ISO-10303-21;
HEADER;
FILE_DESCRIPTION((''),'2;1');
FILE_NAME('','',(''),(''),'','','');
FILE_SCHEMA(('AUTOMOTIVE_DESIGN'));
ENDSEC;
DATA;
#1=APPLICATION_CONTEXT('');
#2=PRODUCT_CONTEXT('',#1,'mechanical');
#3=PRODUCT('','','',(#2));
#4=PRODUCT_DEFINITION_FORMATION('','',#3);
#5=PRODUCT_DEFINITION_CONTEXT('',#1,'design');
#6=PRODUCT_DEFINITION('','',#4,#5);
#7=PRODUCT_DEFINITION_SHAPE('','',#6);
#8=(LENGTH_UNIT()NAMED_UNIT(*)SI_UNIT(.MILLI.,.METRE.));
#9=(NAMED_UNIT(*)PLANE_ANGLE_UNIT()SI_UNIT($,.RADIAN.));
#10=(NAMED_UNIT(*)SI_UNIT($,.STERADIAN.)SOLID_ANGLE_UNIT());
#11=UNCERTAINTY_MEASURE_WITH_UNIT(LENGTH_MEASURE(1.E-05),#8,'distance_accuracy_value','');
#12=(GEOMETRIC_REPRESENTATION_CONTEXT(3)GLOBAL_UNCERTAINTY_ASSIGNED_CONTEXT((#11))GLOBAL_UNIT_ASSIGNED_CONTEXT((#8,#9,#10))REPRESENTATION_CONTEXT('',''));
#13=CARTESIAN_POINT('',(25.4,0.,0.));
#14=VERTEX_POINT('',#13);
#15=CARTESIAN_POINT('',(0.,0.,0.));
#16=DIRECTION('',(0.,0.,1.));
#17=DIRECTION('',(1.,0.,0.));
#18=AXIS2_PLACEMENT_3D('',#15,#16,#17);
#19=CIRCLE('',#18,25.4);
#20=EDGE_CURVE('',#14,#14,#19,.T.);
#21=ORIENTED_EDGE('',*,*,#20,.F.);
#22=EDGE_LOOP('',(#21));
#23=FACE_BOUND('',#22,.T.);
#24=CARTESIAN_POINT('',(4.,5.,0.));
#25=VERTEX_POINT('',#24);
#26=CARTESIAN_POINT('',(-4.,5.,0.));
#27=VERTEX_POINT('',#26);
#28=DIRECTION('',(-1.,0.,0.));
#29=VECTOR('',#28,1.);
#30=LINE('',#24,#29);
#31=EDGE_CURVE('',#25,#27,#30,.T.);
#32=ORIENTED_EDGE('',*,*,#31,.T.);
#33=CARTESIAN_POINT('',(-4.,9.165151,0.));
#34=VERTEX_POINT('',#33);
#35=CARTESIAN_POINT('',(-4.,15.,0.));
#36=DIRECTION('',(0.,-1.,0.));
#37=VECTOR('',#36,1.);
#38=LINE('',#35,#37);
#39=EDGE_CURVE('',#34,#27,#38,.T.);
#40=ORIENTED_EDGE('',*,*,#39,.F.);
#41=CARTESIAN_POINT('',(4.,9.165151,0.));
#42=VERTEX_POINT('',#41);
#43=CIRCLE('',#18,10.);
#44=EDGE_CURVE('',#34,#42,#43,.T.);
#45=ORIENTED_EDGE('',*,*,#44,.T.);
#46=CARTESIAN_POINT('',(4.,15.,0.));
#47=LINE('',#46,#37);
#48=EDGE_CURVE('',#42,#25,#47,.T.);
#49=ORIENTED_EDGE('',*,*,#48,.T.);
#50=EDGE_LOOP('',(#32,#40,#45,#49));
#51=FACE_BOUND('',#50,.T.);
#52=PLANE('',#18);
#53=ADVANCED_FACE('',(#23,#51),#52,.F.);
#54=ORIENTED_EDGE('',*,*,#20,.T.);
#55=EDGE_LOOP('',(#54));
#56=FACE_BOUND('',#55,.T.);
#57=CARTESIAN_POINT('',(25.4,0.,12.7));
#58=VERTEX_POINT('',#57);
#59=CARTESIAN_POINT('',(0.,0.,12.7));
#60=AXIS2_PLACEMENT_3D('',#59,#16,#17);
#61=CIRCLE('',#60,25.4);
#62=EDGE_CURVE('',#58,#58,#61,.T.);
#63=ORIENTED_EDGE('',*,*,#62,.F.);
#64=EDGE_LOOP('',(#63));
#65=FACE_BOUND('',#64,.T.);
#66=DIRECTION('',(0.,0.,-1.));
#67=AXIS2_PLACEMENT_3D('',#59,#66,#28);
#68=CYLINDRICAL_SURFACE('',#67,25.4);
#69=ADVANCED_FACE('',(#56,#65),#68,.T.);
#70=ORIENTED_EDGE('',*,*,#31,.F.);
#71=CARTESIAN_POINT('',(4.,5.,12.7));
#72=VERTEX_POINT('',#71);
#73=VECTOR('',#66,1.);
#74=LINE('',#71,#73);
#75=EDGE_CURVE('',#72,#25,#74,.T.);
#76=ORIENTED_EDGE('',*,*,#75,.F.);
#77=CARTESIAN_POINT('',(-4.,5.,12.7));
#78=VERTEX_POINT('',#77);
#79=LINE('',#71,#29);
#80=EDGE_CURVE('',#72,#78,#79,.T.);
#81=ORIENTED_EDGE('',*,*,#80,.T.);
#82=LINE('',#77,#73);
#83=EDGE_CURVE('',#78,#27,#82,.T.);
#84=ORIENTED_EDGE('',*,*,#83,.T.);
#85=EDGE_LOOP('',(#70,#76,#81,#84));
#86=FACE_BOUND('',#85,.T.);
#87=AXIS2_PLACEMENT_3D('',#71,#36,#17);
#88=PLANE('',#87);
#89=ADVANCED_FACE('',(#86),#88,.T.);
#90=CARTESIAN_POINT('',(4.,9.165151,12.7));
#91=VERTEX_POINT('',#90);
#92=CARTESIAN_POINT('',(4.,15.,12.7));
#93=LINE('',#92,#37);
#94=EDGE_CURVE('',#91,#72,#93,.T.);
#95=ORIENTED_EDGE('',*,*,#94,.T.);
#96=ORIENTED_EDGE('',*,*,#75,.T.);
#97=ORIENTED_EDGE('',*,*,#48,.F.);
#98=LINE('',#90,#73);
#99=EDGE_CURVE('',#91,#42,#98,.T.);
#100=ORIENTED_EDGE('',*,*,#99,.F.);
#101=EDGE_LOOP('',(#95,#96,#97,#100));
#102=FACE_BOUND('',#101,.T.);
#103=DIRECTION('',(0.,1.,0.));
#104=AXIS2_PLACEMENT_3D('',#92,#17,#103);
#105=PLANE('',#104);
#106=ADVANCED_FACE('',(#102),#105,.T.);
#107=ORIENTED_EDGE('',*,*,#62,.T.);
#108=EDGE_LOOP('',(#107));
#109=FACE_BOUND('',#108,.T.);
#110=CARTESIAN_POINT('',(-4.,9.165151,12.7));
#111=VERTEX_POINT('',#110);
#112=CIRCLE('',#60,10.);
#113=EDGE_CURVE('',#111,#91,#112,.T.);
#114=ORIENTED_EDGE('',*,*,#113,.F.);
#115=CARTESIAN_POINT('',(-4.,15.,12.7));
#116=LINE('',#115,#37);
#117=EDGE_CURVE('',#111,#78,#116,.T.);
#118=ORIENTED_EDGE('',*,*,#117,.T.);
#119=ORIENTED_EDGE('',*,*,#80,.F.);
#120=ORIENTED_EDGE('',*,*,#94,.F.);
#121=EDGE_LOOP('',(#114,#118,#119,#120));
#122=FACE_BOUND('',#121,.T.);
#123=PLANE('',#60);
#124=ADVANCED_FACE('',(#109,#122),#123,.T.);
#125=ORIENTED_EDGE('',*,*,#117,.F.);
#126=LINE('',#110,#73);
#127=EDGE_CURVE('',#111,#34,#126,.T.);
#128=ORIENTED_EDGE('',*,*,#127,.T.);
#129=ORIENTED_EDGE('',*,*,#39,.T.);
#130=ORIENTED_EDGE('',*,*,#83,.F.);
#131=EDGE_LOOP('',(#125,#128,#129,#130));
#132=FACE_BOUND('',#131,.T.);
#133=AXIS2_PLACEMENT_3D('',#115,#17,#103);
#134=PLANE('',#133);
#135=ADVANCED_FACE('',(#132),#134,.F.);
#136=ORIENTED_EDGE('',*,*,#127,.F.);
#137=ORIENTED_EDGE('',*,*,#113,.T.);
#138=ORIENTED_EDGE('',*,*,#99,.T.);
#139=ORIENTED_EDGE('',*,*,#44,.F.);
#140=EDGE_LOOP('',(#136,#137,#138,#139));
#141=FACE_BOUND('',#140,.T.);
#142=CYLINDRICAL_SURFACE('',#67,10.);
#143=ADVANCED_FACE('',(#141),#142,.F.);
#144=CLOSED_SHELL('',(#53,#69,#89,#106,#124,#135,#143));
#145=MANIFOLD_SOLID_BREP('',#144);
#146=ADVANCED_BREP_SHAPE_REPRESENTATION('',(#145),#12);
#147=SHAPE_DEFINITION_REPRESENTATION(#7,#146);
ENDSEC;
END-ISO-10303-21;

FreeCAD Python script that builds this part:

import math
import FreeCAD as App
import Part
import Sketcher

V = App.Vector
Q = App.Units.Quantity

doc = App.newDocument("Part")
body = doc.addObject("PartDesign::Body", "Body")

sketch1 = doc.addObject("Sketcher::SketchObject", "Sketch")
body.addObject(sketch1)
sketch1.AttachmentSupport = (doc.XY_Plane, [""])
sketch1.MapMode = "FlatFace"
sketch1.addGeometry(Part.Circle(V(0, 0, 0), V(0, 0, 1), 25.4), False)
sketch1.addGeometry(Part.ArcOfCircle(Part.Circle(V(0, 0, 0), V(0, 0, 1), 10), math.radians(113.578178), math.radians(426.421822)), False)
sketch1.addGeometry(Part.LineSegment(V(-4, 9.165151, 0), V(-4, 5, 0)), False)
sketch1.addGeometry(Part.LineSegment(V(-4, 5, 0), V(4, 5, 0)), False)
sketch1.addGeometry(Part.LineSegment(V(4, 5, 0), V(4, 9.165151, 0)), False)
sketch1.addConstraint(Sketcher.Constraint("Coincident", 1, 1, 2, 1))
sketch1.addConstraint(Sketcher.Constraint("Coincident", 2, 2, 3, 1))
sketch1.addConstraint(Sketcher.Constraint("Coincident", 3, 2, 4, 1))
sketch1.addConstraint(Sketcher.Constraint("Coincident", 4, 2, 1, 2))
sketch1.addConstraint(Sketcher.Constraint("Vertical", 2))
sketch1.addConstraint(Sketcher.Constraint("Horizontal", 3))
sketch1.addConstraint(Sketcher.Constraint("Vertical", 4))
sketch1.addConstraint(Sketcher.Constraint("Coincident", 0, 3, -1, 1))
sketch1.addConstraint(Sketcher.Constraint("Coincident", 1, 3, -1, 1))
sketch1.addConstraint(Sketcher.Constraint("Horizontal", 1, 1, 4, 2))
sketch1.addConstraint(Sketcher.Constraint("Radius", 1, Q("10 mm")))
sketch1.addConstraint(Sketcher.Constraint("Diameter", 0, Q("50.8 mm")))
sketch1.addConstraint(Sketcher.Constraint("DistanceX", 3, 1, 3, 2, Q("8 mm")))
sketch1.addConstraint(Sketcher.Constraint("DistanceY", -1, 1, 2, 2, Q("5 mm")))
pad1 = doc.addObject("PartDesign::Pad", "Pad")
body.addObject(pad1)
pad1.Profile = sketch1
pad1.Length = 12.7

doc.recompute()
